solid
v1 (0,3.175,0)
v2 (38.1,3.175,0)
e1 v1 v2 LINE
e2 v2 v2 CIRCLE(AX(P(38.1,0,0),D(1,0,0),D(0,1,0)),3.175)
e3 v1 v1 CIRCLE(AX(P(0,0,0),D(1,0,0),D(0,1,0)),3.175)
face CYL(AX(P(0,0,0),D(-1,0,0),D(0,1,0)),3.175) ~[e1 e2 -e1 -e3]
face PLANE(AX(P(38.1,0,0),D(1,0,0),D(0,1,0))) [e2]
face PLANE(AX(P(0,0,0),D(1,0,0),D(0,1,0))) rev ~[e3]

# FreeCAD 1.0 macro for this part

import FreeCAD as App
import Part
import Sketcher
Q = App.Units.Quantity

doc = App.newDocument("Part")
body = doc.addObject("PartDesign::Body", "Body")

# Sketch on YZ plane
sketch1 = doc.addObject("Sketcher::SketchObject", "Sketch")
body.addObject(sketch1)
sketch1.AttachmentSupport = (doc.YZ_Plane, [""])
sketch1.MapMode = "FlatFace"
sketch1.addGeometry(Part.Circle(App.Vector(0, 0, 0), App.Vector(0, 0, 1), 3.175), False)
sketch1.addConstraint([
    Sketcher.Constraint("Coincident", 0, 3, -1, 1),
    Sketcher.Constraint("Diameter", 0, Q("0.25 in")),
])
pad1 = doc.addObject("PartDesign::Pad", "Pad")
body.addObject(pad1)
pad1.Profile = sketch1
pad1.Length = Q("1.5 in")

doc.recompute()
